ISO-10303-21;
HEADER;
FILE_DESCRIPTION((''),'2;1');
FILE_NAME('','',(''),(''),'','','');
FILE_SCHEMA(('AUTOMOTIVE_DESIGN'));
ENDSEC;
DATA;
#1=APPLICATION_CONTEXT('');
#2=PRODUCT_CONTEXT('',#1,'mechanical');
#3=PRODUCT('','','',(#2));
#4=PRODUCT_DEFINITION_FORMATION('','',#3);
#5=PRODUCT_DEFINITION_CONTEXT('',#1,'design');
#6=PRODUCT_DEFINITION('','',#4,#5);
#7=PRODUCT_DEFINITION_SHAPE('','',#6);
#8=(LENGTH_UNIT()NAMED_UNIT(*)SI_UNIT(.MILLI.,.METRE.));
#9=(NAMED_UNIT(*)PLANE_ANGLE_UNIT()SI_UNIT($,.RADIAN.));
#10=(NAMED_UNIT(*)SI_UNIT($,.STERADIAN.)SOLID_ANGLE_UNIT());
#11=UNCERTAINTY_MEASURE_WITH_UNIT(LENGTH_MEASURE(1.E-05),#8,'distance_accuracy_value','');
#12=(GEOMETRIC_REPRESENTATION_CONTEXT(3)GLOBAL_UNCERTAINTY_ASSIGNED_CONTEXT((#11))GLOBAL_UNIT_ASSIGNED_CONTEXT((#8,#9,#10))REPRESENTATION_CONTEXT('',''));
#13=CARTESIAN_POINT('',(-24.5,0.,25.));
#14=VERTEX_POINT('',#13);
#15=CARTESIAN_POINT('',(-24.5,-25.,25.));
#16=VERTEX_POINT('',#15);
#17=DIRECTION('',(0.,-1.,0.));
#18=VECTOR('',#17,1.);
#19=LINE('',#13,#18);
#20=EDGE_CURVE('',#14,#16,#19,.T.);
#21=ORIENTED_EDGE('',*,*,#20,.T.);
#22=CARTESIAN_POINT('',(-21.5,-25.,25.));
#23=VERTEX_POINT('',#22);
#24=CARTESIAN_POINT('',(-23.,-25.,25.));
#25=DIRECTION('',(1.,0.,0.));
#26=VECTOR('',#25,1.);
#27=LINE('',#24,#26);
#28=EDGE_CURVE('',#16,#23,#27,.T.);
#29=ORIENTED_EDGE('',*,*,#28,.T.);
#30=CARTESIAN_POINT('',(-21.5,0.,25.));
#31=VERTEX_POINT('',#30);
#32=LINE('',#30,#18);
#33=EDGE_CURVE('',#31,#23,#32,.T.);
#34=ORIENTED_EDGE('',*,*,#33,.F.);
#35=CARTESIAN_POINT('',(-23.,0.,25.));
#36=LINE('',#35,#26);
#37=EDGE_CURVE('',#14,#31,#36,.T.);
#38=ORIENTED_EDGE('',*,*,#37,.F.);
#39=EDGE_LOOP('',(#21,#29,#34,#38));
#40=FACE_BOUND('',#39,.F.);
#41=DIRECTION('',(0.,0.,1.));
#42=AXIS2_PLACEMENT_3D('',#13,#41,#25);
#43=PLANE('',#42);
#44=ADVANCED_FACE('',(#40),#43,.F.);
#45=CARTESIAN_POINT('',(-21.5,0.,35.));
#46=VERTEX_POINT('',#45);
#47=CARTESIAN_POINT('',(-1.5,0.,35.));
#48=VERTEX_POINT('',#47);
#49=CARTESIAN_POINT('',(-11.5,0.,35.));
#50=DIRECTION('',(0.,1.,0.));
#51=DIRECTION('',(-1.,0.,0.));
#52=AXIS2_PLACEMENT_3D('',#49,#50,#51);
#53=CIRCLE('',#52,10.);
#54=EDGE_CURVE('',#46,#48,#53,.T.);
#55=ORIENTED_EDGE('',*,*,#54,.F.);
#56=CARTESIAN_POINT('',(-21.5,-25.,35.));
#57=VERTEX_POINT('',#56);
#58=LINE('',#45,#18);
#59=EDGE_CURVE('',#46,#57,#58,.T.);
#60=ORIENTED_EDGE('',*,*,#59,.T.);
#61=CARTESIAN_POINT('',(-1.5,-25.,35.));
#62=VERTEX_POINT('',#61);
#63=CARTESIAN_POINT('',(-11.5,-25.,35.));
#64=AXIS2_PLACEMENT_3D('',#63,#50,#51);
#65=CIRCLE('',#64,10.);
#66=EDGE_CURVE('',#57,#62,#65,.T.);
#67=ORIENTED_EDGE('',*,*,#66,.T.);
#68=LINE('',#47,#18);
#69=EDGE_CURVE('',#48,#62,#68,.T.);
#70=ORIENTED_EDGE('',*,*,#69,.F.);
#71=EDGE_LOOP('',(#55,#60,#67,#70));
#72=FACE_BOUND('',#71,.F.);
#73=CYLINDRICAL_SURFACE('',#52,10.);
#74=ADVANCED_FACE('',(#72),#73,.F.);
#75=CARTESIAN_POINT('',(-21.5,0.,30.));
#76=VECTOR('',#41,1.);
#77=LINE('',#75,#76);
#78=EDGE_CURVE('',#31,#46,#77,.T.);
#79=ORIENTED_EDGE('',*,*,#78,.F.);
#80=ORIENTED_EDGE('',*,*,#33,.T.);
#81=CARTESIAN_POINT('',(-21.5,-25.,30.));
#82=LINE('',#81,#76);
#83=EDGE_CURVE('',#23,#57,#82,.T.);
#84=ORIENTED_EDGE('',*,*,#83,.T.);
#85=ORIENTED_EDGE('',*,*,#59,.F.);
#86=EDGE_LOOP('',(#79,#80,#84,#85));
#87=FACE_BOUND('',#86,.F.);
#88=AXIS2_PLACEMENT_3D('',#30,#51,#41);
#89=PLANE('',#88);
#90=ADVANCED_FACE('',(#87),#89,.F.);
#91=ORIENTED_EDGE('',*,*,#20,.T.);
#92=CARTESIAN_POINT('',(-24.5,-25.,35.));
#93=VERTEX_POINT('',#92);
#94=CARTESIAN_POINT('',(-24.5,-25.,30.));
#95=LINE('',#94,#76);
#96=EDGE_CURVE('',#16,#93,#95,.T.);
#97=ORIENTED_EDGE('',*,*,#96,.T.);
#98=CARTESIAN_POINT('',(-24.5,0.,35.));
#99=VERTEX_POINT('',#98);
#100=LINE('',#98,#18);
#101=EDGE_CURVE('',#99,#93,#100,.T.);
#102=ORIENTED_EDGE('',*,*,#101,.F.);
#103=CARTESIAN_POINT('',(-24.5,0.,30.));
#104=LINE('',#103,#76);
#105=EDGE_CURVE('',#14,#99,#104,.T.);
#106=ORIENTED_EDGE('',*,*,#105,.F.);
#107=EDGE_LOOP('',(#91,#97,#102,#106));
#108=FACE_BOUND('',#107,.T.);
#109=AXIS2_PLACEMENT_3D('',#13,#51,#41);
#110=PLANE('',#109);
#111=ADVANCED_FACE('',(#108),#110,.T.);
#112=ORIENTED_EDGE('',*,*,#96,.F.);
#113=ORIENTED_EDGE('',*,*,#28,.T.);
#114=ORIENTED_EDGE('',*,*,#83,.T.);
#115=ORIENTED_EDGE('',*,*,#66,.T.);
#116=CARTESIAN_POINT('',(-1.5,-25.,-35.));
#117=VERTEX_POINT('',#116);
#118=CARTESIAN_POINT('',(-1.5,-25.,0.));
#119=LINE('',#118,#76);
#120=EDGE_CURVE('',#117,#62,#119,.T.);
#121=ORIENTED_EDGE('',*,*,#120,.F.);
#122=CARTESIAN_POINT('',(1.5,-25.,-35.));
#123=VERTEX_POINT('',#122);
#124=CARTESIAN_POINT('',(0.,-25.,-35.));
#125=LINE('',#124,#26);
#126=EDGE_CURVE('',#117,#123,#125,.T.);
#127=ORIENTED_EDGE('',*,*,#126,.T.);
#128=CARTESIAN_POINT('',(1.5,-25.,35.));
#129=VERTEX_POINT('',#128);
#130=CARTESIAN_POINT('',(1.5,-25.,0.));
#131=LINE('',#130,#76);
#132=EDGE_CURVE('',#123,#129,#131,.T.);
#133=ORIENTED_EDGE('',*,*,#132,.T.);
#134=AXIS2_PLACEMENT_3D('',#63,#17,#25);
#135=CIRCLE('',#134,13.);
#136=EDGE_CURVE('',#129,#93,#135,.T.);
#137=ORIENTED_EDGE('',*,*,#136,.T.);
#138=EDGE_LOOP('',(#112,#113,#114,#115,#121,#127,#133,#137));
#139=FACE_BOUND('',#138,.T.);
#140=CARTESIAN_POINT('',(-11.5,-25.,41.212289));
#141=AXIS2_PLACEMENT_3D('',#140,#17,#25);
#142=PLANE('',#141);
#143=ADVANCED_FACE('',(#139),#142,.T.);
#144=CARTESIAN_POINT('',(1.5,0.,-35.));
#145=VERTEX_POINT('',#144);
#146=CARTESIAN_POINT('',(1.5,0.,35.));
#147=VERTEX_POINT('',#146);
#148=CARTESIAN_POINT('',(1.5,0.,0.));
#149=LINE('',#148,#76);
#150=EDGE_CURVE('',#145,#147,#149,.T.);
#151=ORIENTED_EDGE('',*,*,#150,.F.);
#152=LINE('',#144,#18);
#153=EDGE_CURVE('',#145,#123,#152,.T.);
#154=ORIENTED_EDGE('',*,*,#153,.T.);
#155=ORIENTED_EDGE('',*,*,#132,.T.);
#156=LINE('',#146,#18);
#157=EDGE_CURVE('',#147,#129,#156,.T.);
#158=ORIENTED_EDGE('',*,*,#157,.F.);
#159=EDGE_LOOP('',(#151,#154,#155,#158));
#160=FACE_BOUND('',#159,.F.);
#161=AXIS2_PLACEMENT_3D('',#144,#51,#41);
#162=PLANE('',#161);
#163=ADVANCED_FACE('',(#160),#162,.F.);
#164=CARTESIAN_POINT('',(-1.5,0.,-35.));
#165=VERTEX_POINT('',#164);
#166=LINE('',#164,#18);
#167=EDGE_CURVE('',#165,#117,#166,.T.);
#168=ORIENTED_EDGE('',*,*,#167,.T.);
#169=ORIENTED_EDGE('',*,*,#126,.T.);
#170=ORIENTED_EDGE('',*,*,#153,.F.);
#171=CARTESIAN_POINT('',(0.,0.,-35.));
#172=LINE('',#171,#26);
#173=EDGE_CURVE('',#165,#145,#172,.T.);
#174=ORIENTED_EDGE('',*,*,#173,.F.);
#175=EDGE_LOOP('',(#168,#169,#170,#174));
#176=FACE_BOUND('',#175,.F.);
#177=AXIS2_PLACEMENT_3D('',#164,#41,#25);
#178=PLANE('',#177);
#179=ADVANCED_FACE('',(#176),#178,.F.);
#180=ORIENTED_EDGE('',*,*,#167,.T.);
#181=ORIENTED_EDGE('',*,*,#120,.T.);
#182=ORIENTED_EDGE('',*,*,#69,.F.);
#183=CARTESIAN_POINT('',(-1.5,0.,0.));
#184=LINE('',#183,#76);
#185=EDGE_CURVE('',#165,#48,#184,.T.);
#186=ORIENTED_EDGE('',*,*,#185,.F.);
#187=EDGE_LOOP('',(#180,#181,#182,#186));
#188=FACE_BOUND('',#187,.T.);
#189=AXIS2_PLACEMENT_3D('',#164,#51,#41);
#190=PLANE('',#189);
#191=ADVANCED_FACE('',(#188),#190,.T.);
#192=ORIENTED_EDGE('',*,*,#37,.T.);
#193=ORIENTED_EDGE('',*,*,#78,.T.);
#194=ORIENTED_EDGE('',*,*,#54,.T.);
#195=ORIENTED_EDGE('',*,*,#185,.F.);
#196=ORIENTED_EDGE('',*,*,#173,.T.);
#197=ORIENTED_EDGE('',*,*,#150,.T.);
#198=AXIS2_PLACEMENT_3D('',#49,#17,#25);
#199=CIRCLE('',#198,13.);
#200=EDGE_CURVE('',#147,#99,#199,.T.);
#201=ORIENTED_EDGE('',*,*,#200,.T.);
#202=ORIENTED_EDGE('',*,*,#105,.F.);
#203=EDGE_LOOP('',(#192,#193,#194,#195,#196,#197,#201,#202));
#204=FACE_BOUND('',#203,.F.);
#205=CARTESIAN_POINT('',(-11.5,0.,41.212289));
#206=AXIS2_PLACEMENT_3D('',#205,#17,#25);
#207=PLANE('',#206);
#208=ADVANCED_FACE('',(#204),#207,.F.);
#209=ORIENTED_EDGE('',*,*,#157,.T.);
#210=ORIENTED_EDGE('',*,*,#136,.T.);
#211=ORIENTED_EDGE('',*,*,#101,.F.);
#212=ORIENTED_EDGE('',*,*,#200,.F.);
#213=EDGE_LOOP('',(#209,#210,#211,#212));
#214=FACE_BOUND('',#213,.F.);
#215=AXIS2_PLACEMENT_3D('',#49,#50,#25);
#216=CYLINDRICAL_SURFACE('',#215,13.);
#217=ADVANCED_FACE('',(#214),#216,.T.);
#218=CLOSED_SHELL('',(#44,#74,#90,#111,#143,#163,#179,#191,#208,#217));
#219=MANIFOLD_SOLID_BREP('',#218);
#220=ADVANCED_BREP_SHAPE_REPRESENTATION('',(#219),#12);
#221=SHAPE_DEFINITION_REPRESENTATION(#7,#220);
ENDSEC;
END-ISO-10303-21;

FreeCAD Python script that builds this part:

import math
import FreeCAD as App
import Part
import Sketcher

V = App.Vector
Q = App.Units.Quantity

doc = App.newDocument("Part")
body = doc.addObject("PartDesign::Body", "Body")

sketch1 = doc.addObject("Sketcher::SketchObject", "Sketch")
body.addObject(sketch1)
sketch1.AttachmentSupport = (doc.XZ_Plane, [""])
sketch1.MapMode = "FlatFace"
sketch1.addGeometry([
    Part.ArcOfCircle(Part.Circle(V(-11.5, 35, 0), V(0, 0, 1), 10), math.radians(0), math.radians(180)),
    Part.LineSegment(V(-1.5, 35, 0), V(-1.5, -35, 0)),
    Part.LineSegment(V(-1.5, -35, 0), V(1.5, -35, 0)),
    Part.LineSegment(V(1.5, -35, 0), V(1.5, 35, 0)),
    Part.ArcOfCircle(Part.Circle(V(-11.5, 35, 0), V(0, 0, 1), 13), math.radians(0), math.radians(180)),
    Part.LineSegment(V(-24.5, 35, 0), V(-24.5, 25, 0)),
    Part.LineSegment(V(-24.5, 25, 0), V(-21.5, 25, 0)),
    Part.LineSegment(V(-21.5, 25, 0), V(-21.5, 35, 0)),
], False)
sketch1.addConstraint([
    Sketcher.Constraint("Tangent", 0, 1, 1, 1),
    Sketcher.Constraint("Coincident", 1, 2, 2, 1),
    Sketcher.Constraint("Coincident", 2, 2, 3, 1),
    Sketcher.Constraint("Tangent", 3, 2, 4, 1),
    Sketcher.Constraint("Tangent", 4, 2, 5, 1),
    Sketcher.Constraint("Coincident", 5, 2, 6, 1),
    Sketcher.Constraint("Coincident", 6, 2, 7, 1),
    Sketcher.Constraint("Tangent", 7, 2, 0, 2),
    Sketcher.Constraint("Vertical", 1),
    Sketcher.Constraint("Horizontal", 2),
    Sketcher.Constraint("Vertical", 3),
    Sketcher.Constraint("Vertical", 5),
    Sketcher.Constraint("Horizontal", 6),
    Sketcher.Constraint("Vertical", 7),
    Sketcher.Constraint("Coincident", 4, 3, 0, 3),
    Sketcher.Constraint("Symmetric", 0, 1, 2, 2, -1, 1),
    Sketcher.Constraint("Radius", 0, Q("10 mm")),
    Sketcher.Constraint("Radius", 4, Q("13 mm")),
    Sketcher.Constraint("DistanceY", 1, 2, 1, 1, Q("70 mm")),
    Sketcher.Constraint("DistanceY", 5, 2, 5, 1, Q("10 mm")),
])
pad1 = doc.addObject("PartDesign::Pad", "Pad")
body.addObject(pad1)
pad1.Profile = sketch1
pad1.Length = 25

doc.recompute()
